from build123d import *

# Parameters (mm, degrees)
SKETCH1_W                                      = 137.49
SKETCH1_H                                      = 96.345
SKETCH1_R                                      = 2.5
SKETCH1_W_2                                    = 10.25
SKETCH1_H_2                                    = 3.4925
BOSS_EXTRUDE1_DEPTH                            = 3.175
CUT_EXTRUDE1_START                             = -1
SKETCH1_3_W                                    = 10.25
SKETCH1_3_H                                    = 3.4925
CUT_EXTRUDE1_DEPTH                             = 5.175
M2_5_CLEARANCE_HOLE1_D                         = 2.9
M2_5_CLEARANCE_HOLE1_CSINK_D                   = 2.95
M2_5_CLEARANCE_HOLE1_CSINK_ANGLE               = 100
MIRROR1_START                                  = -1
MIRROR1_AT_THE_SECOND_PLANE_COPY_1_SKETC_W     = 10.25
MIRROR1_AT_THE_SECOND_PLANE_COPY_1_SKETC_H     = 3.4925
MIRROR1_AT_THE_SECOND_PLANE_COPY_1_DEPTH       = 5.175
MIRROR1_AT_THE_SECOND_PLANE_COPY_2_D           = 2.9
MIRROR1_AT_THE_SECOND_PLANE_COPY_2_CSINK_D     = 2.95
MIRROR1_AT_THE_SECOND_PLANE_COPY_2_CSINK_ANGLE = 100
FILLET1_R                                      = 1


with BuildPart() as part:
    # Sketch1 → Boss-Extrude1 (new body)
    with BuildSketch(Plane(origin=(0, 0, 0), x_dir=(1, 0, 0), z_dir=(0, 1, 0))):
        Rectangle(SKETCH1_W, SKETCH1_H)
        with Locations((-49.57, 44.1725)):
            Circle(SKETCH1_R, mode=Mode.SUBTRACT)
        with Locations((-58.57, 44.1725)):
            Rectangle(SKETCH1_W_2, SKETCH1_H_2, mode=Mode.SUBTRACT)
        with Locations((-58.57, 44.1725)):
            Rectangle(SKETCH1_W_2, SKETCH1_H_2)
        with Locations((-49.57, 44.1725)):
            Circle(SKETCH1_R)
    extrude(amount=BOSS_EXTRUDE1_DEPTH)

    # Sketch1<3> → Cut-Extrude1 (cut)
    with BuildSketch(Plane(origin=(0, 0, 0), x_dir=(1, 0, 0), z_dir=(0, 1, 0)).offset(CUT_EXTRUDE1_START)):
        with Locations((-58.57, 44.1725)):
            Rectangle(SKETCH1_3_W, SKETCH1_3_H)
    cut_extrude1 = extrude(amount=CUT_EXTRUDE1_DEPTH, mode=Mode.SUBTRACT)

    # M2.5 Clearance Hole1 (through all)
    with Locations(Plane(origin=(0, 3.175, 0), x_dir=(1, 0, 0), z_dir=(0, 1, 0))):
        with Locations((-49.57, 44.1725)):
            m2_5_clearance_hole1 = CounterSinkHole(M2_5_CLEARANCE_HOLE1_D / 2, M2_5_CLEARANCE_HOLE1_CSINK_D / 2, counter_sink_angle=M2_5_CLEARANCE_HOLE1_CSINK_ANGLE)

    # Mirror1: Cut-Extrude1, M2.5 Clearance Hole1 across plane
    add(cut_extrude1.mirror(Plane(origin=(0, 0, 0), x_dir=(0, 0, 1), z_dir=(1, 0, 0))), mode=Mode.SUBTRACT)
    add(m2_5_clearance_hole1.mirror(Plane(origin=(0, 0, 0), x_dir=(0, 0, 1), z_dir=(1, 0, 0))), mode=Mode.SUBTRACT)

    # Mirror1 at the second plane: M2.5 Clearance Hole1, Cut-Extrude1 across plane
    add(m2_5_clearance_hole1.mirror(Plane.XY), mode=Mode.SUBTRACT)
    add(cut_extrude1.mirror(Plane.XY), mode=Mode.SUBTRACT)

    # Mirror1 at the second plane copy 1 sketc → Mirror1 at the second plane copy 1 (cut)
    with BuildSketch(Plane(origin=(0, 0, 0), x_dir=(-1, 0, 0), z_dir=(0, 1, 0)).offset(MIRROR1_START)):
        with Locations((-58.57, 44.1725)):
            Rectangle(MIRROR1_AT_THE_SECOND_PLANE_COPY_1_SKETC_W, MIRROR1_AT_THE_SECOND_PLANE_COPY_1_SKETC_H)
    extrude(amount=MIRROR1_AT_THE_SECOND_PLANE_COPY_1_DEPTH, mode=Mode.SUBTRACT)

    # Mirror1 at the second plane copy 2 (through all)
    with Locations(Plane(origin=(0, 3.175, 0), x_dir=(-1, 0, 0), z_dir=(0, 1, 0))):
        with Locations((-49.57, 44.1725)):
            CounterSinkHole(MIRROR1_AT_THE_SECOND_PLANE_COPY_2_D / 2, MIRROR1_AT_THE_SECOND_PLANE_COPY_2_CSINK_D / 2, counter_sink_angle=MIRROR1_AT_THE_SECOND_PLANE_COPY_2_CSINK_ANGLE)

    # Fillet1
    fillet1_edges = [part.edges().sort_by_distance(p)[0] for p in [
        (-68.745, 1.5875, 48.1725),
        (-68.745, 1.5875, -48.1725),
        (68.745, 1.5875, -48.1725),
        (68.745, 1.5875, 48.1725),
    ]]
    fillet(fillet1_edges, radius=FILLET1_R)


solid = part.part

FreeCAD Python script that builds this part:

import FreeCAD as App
import Part
import Sketcher
from FreeCAD import Vector
Q = App.Units.Quantity


def edges_at(feature, points):
    """Names of the edges that pass closest to the given points."""
    edges = feature.Shape.Edges
    near = lambda p: min(range(len(edges)), key=lambda i: edges[i].distToShape(Part.Vertex(*p))[0])
    return sorted({f"Edge{near(p) + 1}" for p in points})


def add_polygon(sketch, points):
    """Adds a closed chain of lines whose ends are joined by coincident constraints."""
    first, n = sketch.GeometryCount, len(points)
    for a, b in zip(points, points[1:] + points[:1]):
        sketch.addGeometry(Part.LineSegment(App.Vector(*a, 0), App.Vector(*b, 0)), False)
    for i in range(n):
        sketch.addConstraint(Sketcher.Constraint("Coincident", first + i, 2, first + (i + 1) % n, 1))

doc = App.newDocument("Part")
body = doc.addObject("PartDesign::Body", "Body")

sketch1 = body.newObject("Sketcher::SketchObject", "Sketch")
sketch1.AttachmentSupport = (doc.getObject("XZ_Plane"), [""])
sketch1.MapMode = "FlatFace"
add_polygon(sketch1, [(-69, -48), (-69, 48), (69, 48), (69, -48)])
sketch1.addConstraint([
    Sketcher.Constraint("Vertical", 0),
    Sketcher.Constraint("Horizontal", 1),
    Sketcher.Constraint("Vertical", 2),
    Sketcher.Constraint("Horizontal", 3),
    Sketcher.Constraint("Symmetric", 0, 2, 2, 2, -1, 1),
    Sketcher.Constraint("DistanceX", 1, 1, 1, 2, Q("137.49 mm")),
    Sketcher.Constraint("DistanceY", 0, 1, 0, 2, Q("96.345 mm")),
])
pad1 = body.newObject("PartDesign::Pad", "Pad")
pad1.Profile = sketch1
pad1.Length = 3.175
pad1.Reversed = True

sketch2 = body.newObject("Sketcher::SketchObject", "Sketch001")
sketch2.AttachmentSupport = (doc.getObject("XZ_Plane"), [""])
sketch2.MapMode = "FlatFace"
sketch2.AttachmentOffset = App.Placement(Vector(0, 0, 1), App.Rotation())
add_polygon(sketch2, [(-63.7, -45.9), (-63.7, -42.4), (-53.4, -42.4), (-53.4, -45.9)])
sketch2.addConstraint([
    Sketcher.Constraint("Vertical", 0),
    Sketcher.Constraint("Horizontal", 1),
    Sketcher.Constraint("Vertical", 2),
    Sketcher.Constraint("Horizontal", 3),
    Sketcher.Constraint("DistanceX", 1, 1, 1, 2, Q("10.25 mm")),
    Sketcher.Constraint("DistanceY", 0, 1, 0, 2, Q("3.4925 mm")),
    Sketcher.Constraint("DistanceX", 0, 2, -1, 1, Q("63.695 mm")),
    Sketcher.Constraint("DistanceY", 0, 2, -1, 1, Q("42.42625 mm")),
])
pocket1 = body.newObject("PartDesign::Pocket", "Pocket")
pocket1.Profile = sketch2
pocket1.Length = 5.175

sketch3 = body.newObject("Sketcher::SketchObject", "Sketch002")
sketch3.AttachmentSupport = (doc.getObject("XZ_Plane"), [""])
sketch3.MapMode = "FlatFace"
sketch3.AttachmentOffset = App.Placement(Vector(0, 0, -3.175), App.Rotation())
sketch3.addGeometry(Part.Circle(Vector(-49.6, -44.2, 0), Vector(0, 0, 1), 1.4), False)
sketch3.addConstraint([
    Sketcher.Constraint("Diameter", 0, Q("2.9 mm")),
    Sketcher.Constraint("DistanceX", 0, 3, -1, 1, Q("49.57 mm")),
    Sketcher.Constraint("DistanceY", 0, 3, -1, 1, Q("44.1725 mm")),
])
doc.recompute()
hole = body.newObject("PartDesign::Hole", "Hole")
hole.Profile = sketch3
hole.ThreadType = "None"
hole.Diameter = 2.9
hole.DepthType = "ThroughAll"
hole.HoleCutType = "Countersink"
hole.HoleCutDiameter = 2.95
hole.HoleCutCountersinkAngle = 100
hole.Reversed = True
doc.recompute()

mirrored = body.newObject("PartDesign::Mirrored", "Mirrored")
mirrored.Originals = [pocket1, hole]
mirrored.MirrorPlane = (doc.getObject("YZ_Plane"), [""])
body.Tip = mirrored
doc.recompute()

mirrored2 = body.newObject("PartDesign::Mirrored", "Mirrored001")
mirrored2.Originals = [hole, pocket1]
mirrored2.MirrorPlane = (doc.getObject("XY_Plane"), [""])
body.Tip = mirrored2

sketch4 = body.newObject("Sketcher::SketchObject", "Sketch003")
sketch4.AttachmentSupport = (doc.getObject("XZ_Plane"), [""])
sketch4.MapMode = "FlatFace"
sketch4.AttachmentOffset = App.Placement(Vector(0, 0, 1), App.Rotation())
add_polygon(sketch4, [(63.7, 45.9), (63.7, 42.4), (53.4, 42.4), (53.4, 45.9)])
sketch4.addConstraint([
    Sketcher.Constraint("Vertical", 0),
    Sketcher.Constraint("Horizontal", 1),
    Sketcher.Constraint("Vertical", 2),
    Sketcher.Constraint("Horizontal", 3),
    Sketcher.Constraint("DistanceX", 1, 2, 1, 1, Q("10.25 mm")),
    Sketcher.Constraint("DistanceY", 0, 2, 0, 1, Q("3.4925 mm")),
    Sketcher.Constraint("DistanceX", -1, 1, 0, 2, Q("63.695 mm")),
    Sketcher.Constraint("DistanceY", -1, 1, 0, 2, Q("42.42625 mm")),
])
pocket2 = body.newObject("PartDesign::Pocket", "Pocket001")
pocket2.Profile = sketch4
pocket2.Length = 5.175

sketch5 = body.newObject("Sketcher::SketchObject", "Sketch004")
sketch5.AttachmentSupport = (doc.getObject("XZ_Plane"), [""])
sketch5.MapMode = "FlatFace"
sketch5.AttachmentOffset = App.Placement(Vector(0, 0, -3.175), App.Rotation())
sketch5.addGeometry(Part.Circle(Vector(49.6, 44.2, 0), Vector(0, 0, 1), 1.4), False)
sketch5.addConstraint([
    Sketcher.Constraint("Diameter", 0, Q("2.9 mm")),
    Sketcher.Constraint("DistanceX", -1, 1, 0, 3, Q("49.57 mm")),
    Sketcher.Constraint("DistanceY", -1, 1, 0, 3, Q("44.1725 mm")),
])
doc.recompute()
hole2 = body.newObject("PartDesign::Hole", "Hole001")
hole2.Profile = sketch5
hole2.ThreadType = "None"
hole2.Diameter = 2.9
hole2.DepthType = "ThroughAll"
hole2.HoleCutType = "Countersink"
hole2.HoleCutDiameter = 2.95
hole2.HoleCutCountersinkAngle = 100
hole2.Reversed = True
doc.recompute()

fillet = body.newObject("PartDesign::Fillet", "Fillet")
fillet.Base = (hole2, edges_at(hole2, [
    (-68.745, 1.587, 48.172),
    (-68.745, 1.587, -48.172),
    (68.745, 1.587, -48.172),
    (68.745, 1.587, 48.172),
]))
fillet.Radius = 1

doc.recompute()
